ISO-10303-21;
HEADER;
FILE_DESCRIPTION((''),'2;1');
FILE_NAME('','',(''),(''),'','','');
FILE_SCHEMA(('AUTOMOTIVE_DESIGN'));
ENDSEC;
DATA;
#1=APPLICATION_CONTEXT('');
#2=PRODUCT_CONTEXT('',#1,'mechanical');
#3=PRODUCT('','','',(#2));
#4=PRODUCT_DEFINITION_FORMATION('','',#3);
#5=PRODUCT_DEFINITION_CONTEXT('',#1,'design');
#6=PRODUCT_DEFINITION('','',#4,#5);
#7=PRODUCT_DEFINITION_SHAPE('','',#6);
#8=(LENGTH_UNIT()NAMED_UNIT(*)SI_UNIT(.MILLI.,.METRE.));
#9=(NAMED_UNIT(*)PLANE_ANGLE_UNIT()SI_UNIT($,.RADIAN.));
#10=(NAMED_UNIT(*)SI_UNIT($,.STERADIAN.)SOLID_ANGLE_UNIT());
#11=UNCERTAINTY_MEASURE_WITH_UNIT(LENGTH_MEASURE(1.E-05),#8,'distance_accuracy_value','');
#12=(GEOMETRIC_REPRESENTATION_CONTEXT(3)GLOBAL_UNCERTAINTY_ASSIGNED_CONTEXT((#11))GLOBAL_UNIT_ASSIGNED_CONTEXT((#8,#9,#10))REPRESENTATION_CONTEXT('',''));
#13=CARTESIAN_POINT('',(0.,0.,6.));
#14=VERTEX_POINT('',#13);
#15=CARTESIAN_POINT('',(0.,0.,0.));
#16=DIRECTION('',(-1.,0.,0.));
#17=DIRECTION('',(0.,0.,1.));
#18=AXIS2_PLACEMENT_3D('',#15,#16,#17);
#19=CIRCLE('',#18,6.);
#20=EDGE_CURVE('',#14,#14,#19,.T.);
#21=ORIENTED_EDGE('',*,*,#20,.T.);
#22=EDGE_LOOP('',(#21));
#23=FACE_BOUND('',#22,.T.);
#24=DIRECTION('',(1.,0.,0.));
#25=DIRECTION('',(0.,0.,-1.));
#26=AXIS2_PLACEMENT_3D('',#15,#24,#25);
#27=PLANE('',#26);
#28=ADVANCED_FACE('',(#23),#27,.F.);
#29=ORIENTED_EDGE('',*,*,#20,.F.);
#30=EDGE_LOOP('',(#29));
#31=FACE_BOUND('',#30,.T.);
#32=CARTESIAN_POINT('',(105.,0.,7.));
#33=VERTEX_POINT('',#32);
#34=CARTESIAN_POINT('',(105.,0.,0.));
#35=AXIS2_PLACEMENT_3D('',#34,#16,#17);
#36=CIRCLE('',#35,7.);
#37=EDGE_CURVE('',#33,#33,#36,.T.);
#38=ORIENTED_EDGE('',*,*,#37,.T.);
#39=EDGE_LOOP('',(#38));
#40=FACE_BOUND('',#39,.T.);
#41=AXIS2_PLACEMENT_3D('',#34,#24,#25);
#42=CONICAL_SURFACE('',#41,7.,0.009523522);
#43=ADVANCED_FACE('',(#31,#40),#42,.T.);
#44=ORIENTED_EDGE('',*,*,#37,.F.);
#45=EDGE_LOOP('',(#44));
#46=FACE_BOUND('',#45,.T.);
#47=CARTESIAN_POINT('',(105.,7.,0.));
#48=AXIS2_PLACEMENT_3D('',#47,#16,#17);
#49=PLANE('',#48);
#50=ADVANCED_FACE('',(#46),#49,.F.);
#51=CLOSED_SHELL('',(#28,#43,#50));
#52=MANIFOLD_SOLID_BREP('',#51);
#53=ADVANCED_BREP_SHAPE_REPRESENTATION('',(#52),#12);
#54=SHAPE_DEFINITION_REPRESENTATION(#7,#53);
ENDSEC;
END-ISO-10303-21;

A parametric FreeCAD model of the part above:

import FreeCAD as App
import Part
import Sketcher
Q = App.Units.Quantity


def add_polygon(sketch, points):
    """Adds a closed chain of lines whose ends are joined by coincident constraints."""
    first, n = sketch.GeometryCount, len(points)
    for a, b in zip(points, points[1:] + points[:1]):
        sketch.addGeometry(Part.LineSegment(App.Vector(*a, 0), App.Vector(*b, 0)), False)
    for i in range(n):
        sketch.addConstraint(Sketcher.Constraint("Coincident", first + i, 2, first + (i + 1) % n, 1))

doc = App.newDocument("Part")
params = doc.addObject("Spreadsheet::Sheet", "Params")
for row, (alias, value) in enumerate([
    ("sketch1_width", "105 mm"),
    ("sketch1_height", "6 mm"),
    ("sketch1_height2", "7 mm"),
    ("revolution_angle", "360 deg"),
], start=1):
    params.set(f"A{row}", alias)
    params.set(f"B{row}", "=" + value)
    params.setAlias(f"B{row}", alias)

body = doc.addObject("PartDesign::Body", "Body")

sketch1 = doc.addObject("Sketcher::SketchObject", "Sketch")
body.addObject(sketch1)
sketch1.AttachmentSupport = (doc.XY_Plane, [""])
sketch1.MapMode = "FlatFace"
add_polygon(sketch1, [(0, 6), (0, 0), (105, 0), (105, 7)])
sketch1.addConstraint([
    Sketcher.Constraint("Vertical", 0),
    Sketcher.Constraint("Horizontal", 1),
    Sketcher.Constraint("Vertical", 2),
    Sketcher.Constraint("Coincident", 0, 2, -1, 1),
    Sketcher.Constraint("DistanceX", 1, 1, 1, 2, Q("105 mm")),
    Sketcher.Constraint("DistanceY", 0, 2, 0, 1, Q("6 mm")),
    Sketcher.Constraint("DistanceY", 2, 1, 2, 2, Q("7 mm")),
])
sketch1.setExpression("Constraints[8]", "Params.sketch1_width")
sketch1.setExpression("Constraints[9]", "Params.sketch1_height")
sketch1.setExpression("Constraints[10]", "Params.sketch1_height2")
revolution = doc.addObject("PartDesign::Revolution", "Revolution")
body.addObject(revolution)
revolution.Profile = sketch1
revolution.ReferenceAxis = (sketch1, ["H_Axis"])
revolution.setExpression("Angle", "Params.revolution_angle")

doc.recompute()
